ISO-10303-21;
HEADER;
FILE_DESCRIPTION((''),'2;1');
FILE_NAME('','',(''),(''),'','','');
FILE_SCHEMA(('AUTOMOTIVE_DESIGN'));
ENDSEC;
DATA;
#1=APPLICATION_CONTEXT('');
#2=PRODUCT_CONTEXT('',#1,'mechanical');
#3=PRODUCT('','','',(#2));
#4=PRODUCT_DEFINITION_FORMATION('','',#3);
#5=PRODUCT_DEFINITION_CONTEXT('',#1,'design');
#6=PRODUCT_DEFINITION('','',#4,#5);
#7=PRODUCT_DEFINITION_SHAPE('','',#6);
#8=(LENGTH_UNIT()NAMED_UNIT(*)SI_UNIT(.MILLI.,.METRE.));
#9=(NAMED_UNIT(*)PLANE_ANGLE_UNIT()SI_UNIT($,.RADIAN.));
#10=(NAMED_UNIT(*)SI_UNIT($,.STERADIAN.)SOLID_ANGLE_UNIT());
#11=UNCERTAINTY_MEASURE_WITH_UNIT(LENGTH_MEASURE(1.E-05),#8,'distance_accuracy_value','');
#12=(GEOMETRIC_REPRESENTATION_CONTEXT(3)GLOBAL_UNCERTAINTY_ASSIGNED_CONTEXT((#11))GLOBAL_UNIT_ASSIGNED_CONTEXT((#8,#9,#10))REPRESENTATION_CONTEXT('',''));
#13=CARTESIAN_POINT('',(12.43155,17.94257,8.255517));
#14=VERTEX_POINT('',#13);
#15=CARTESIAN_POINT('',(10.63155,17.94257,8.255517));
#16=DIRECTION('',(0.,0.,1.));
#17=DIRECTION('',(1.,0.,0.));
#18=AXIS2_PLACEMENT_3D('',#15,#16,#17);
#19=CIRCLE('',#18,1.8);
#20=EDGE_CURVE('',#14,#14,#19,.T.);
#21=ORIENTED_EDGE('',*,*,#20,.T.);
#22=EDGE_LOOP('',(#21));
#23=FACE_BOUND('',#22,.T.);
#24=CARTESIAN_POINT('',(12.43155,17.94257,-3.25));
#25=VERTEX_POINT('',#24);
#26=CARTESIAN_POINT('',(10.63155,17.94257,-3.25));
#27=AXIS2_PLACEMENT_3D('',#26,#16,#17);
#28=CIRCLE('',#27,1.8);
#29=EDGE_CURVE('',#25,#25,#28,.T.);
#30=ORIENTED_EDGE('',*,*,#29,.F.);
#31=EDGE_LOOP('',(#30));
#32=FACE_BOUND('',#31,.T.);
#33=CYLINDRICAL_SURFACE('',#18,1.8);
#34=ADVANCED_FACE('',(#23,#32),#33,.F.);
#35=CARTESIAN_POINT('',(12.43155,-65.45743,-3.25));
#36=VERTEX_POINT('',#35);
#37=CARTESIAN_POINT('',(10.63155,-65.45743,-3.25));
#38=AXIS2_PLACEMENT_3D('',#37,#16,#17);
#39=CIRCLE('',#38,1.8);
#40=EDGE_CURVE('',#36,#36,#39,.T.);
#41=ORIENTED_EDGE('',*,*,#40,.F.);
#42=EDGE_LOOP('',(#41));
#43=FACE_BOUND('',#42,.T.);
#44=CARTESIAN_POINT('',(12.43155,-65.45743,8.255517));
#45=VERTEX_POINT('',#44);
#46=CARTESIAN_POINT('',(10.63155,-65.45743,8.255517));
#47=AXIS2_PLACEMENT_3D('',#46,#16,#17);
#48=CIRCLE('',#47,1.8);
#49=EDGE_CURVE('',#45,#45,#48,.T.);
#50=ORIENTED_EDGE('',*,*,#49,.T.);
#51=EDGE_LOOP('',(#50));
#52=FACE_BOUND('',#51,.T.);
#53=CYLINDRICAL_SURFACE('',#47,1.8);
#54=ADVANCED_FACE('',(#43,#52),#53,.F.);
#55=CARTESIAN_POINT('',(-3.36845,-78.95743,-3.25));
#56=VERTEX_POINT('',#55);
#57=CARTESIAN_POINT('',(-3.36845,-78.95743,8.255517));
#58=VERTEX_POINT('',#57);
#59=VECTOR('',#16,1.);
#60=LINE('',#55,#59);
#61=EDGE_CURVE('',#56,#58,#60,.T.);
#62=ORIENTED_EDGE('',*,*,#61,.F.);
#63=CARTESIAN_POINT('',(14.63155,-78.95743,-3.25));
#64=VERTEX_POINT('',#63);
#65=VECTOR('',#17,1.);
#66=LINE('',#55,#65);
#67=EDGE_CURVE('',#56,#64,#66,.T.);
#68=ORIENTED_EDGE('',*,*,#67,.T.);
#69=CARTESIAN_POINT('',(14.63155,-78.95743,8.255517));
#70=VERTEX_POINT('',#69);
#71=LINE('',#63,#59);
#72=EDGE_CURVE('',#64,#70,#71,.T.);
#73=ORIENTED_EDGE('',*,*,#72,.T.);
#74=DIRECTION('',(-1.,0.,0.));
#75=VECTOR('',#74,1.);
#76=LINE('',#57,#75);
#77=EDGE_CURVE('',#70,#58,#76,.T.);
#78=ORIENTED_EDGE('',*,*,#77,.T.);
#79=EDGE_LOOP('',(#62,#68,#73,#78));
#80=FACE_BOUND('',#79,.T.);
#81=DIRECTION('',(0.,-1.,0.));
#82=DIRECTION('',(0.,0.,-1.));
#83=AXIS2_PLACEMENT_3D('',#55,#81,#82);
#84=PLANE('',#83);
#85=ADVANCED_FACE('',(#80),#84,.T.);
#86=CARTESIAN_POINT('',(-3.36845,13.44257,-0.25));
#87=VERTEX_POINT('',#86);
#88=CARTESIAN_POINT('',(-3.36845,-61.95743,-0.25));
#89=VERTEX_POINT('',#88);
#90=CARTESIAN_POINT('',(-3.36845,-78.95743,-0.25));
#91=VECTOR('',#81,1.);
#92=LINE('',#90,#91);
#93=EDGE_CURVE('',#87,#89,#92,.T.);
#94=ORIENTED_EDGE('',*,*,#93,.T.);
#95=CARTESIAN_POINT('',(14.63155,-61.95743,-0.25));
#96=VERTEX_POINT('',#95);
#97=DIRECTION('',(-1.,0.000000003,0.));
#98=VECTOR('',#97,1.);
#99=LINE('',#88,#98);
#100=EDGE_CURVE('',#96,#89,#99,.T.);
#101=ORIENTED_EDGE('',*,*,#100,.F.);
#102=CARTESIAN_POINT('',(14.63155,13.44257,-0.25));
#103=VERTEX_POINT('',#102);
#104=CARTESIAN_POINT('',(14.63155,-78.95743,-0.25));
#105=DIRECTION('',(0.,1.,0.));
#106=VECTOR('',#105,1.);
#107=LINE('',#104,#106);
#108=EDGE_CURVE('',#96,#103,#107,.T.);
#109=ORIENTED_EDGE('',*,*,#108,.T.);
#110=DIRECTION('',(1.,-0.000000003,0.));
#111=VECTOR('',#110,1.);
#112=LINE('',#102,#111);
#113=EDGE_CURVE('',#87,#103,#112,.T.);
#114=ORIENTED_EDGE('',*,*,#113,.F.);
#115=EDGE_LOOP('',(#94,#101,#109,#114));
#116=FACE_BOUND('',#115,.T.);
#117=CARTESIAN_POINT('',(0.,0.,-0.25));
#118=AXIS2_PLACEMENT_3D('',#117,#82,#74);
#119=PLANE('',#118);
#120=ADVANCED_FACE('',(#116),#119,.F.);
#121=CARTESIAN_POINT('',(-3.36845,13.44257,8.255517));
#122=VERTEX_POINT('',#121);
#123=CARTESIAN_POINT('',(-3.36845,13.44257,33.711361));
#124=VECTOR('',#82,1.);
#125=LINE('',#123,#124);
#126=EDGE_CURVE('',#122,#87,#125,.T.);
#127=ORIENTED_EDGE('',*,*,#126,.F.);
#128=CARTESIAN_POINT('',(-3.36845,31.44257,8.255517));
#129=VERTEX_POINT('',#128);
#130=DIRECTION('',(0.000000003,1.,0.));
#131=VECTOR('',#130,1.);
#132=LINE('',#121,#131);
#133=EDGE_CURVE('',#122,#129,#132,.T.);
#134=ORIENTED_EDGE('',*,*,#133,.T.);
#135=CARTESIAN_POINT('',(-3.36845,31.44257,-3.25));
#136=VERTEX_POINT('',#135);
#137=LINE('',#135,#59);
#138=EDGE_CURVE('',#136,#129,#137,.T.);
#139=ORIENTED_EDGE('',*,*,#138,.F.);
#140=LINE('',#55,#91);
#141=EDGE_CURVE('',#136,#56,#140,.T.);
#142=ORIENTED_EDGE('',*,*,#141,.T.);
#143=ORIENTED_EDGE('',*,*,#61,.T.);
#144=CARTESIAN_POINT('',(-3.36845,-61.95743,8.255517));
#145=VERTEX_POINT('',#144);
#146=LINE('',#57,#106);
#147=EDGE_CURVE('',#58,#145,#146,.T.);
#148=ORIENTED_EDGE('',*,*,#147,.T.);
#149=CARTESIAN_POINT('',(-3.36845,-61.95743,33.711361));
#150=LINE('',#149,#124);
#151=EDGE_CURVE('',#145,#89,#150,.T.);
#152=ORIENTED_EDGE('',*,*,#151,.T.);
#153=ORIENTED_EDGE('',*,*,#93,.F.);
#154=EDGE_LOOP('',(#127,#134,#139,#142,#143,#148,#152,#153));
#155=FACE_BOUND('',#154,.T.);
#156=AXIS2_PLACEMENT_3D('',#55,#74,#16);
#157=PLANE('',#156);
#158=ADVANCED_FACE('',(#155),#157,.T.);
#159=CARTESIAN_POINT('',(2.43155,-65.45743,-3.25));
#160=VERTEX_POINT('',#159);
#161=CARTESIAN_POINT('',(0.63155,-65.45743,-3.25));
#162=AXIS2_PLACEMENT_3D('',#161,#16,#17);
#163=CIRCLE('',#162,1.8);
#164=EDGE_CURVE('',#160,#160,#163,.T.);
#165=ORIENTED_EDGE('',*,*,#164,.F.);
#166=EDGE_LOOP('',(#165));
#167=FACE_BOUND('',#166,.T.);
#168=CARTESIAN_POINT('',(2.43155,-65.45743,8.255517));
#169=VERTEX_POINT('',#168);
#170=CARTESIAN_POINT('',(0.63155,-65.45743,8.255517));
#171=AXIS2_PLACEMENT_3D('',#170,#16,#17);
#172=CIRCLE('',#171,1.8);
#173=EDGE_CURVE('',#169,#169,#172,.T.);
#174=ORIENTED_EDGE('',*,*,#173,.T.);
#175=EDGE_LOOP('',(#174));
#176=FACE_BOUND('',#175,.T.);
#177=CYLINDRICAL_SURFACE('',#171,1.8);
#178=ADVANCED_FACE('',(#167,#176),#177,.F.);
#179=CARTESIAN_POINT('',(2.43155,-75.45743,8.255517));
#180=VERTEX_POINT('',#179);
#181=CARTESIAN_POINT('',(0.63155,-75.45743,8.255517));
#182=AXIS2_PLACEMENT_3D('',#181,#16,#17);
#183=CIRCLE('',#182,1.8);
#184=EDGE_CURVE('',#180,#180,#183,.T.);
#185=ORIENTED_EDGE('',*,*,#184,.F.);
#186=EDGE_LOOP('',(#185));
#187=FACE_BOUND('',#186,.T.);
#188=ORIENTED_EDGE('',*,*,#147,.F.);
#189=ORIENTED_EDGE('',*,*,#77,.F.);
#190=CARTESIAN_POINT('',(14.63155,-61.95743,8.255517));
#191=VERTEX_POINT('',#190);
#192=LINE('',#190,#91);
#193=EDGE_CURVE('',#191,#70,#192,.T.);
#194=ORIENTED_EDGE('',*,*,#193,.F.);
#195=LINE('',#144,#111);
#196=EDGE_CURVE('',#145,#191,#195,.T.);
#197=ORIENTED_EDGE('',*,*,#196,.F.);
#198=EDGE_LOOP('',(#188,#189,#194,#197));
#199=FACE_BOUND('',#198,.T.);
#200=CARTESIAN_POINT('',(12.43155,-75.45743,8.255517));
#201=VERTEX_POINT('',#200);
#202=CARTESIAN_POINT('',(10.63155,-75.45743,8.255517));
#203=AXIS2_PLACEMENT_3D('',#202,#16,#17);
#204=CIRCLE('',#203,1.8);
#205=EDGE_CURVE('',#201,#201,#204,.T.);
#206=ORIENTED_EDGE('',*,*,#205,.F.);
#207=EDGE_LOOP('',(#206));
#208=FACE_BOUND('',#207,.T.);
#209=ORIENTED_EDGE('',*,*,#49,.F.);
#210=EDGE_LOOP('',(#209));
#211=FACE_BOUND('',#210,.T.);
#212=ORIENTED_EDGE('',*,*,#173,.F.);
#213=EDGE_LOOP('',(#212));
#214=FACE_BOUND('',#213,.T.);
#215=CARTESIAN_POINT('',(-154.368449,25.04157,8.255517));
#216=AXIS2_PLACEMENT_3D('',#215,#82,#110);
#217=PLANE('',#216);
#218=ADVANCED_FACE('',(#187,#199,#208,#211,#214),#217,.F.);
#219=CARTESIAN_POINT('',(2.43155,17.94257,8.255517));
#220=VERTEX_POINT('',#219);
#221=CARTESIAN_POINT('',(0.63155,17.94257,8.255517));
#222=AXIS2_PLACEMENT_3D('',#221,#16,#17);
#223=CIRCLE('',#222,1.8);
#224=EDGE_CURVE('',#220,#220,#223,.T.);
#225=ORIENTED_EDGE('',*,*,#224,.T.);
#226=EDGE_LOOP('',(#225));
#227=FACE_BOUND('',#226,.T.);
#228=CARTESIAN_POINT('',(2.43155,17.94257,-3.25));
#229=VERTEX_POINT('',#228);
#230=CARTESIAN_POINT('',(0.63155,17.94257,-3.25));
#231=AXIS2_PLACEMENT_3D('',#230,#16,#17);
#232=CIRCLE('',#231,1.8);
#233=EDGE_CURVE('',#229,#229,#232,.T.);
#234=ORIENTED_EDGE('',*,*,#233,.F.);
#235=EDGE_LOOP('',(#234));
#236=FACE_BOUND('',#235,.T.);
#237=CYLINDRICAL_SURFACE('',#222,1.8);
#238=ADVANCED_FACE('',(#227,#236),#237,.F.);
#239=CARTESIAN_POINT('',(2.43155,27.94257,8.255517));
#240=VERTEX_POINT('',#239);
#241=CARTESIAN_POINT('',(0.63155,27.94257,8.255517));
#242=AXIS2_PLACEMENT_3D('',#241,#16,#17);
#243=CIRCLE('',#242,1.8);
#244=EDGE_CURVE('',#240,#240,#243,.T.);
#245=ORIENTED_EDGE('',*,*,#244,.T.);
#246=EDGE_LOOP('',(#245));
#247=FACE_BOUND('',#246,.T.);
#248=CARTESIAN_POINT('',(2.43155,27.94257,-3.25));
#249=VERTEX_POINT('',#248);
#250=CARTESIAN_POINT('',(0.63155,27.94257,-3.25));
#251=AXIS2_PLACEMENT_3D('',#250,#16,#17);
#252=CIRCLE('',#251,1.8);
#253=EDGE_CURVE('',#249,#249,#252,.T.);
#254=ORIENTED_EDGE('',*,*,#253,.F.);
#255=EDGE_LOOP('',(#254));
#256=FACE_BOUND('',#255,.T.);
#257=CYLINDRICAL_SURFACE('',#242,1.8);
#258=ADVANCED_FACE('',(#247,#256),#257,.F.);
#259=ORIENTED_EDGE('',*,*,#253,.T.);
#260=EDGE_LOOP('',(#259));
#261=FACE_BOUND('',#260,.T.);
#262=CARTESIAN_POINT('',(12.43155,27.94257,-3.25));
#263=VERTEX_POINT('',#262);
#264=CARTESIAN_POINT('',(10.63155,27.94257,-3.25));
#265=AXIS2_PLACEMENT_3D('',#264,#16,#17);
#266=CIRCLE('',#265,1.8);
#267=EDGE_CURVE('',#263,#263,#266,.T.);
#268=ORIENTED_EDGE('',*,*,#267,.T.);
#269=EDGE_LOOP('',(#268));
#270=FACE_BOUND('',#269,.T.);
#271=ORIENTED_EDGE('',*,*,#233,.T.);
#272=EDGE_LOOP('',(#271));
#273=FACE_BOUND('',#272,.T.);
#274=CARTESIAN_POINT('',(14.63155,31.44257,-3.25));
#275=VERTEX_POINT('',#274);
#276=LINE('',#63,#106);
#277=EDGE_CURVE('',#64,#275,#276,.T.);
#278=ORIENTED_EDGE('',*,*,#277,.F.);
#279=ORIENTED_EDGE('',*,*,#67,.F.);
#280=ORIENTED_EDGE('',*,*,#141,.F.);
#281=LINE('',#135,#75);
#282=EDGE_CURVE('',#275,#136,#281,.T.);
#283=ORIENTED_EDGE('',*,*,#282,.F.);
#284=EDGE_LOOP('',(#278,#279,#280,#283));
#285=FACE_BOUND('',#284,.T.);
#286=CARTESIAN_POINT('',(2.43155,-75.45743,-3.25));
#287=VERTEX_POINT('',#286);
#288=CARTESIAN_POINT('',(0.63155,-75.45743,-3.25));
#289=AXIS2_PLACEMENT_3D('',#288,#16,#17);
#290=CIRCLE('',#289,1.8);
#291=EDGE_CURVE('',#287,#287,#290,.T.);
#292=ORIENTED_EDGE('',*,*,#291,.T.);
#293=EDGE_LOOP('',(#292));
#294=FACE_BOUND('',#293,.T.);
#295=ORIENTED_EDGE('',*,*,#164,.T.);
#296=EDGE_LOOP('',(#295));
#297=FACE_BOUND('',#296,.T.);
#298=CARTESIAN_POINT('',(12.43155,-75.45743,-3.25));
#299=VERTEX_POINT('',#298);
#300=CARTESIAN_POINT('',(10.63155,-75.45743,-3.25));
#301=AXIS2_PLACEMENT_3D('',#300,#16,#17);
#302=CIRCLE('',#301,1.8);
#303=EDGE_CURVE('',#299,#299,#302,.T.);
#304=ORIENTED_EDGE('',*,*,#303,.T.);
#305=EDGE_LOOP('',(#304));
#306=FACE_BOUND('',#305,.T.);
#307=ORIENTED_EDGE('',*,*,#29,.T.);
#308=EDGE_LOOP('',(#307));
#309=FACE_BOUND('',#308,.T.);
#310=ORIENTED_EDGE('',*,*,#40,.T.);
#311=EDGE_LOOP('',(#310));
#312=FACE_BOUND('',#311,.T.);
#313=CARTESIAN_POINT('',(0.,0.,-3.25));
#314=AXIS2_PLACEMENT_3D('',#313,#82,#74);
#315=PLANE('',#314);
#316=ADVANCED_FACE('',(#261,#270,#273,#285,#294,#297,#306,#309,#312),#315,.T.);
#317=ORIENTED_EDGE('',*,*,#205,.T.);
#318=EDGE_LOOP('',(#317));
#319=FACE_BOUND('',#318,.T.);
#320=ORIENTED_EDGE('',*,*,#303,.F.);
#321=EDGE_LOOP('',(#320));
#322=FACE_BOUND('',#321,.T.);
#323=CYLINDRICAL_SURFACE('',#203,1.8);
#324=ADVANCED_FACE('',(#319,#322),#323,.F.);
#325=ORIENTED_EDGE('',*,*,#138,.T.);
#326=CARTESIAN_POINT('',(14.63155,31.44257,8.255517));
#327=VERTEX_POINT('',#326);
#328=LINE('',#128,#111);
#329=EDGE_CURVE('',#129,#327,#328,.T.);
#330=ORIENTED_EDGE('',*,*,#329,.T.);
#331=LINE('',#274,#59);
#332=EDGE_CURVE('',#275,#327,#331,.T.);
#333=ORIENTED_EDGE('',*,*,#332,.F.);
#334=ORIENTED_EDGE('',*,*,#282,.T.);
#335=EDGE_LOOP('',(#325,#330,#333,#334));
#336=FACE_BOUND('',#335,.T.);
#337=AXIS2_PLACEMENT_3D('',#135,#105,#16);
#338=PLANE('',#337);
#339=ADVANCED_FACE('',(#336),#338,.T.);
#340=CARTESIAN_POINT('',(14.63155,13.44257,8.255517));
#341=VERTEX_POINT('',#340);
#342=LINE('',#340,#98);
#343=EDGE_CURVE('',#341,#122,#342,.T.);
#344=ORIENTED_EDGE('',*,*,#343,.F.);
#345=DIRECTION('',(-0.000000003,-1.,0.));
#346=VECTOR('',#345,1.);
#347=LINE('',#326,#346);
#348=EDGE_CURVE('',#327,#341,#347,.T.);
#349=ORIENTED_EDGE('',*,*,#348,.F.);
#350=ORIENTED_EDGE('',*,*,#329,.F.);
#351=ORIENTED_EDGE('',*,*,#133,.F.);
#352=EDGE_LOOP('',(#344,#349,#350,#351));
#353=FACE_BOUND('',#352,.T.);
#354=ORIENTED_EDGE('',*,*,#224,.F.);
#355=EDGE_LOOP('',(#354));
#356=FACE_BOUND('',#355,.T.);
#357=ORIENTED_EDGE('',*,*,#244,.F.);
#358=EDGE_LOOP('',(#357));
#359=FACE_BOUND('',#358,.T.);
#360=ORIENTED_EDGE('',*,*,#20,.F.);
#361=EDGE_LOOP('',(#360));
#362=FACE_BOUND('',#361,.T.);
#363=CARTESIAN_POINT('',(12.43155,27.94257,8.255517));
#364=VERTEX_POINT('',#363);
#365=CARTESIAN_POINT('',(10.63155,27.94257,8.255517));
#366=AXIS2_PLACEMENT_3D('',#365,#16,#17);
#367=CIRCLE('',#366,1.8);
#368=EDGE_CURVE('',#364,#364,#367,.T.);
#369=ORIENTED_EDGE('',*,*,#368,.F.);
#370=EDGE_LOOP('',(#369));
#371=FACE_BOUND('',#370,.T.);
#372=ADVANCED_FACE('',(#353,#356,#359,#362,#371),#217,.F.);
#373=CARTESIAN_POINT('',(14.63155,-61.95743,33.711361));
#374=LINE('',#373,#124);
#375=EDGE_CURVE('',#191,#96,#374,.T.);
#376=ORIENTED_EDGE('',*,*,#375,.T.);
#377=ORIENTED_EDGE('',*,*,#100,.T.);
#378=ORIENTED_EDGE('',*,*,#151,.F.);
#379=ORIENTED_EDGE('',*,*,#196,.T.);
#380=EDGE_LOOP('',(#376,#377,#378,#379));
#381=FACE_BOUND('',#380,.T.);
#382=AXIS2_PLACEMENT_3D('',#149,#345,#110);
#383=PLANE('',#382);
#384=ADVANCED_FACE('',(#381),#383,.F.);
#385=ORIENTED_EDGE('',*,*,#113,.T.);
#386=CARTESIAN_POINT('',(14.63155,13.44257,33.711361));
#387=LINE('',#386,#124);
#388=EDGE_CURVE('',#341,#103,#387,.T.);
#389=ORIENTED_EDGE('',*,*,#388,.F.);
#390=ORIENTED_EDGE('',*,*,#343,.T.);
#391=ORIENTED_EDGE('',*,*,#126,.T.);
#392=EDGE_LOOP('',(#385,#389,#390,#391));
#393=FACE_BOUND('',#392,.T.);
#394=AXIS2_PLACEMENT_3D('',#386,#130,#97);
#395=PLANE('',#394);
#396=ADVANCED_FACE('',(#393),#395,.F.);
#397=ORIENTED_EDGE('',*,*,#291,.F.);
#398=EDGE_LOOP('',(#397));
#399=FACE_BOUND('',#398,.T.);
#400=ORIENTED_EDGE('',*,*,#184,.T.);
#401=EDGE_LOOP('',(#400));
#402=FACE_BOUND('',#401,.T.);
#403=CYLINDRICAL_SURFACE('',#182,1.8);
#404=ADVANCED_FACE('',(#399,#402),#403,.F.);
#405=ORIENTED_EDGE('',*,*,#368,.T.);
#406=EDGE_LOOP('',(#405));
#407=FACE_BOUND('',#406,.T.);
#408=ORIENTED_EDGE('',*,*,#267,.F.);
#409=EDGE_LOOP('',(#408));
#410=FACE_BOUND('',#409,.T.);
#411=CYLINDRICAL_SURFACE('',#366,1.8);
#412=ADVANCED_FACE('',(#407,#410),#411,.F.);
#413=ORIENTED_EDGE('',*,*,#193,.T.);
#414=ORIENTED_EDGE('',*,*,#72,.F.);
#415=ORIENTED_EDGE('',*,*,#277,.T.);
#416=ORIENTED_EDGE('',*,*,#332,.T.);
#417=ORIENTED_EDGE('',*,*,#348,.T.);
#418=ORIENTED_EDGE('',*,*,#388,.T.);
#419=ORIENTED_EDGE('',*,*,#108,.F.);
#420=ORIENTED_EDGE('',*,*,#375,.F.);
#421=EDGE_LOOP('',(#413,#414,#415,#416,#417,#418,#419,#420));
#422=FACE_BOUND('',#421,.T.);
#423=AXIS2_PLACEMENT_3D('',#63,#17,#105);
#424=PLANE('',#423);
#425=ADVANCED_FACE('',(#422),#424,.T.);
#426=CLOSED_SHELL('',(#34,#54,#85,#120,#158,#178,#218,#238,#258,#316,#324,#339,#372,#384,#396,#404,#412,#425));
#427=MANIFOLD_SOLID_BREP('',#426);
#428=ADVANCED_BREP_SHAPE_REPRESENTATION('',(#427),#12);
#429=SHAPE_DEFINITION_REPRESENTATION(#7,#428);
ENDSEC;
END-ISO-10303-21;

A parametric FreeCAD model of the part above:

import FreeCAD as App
import Part
import Sketcher

doc = App.newDocument("Part")
body = doc.addObject("PartDesign::Body", "Body")

# Sketch on XY plane
sketch1 = body.newObject("Sketcher::SketchObject", "Sketch")
sketch1.AttachmentSupport = (doc.getObject("XY_Plane"), [""])
sketch1.MapMode = "FlatFace"
sketch1.AttachmentOffset = App.Placement(App.Vector(0, 0, -0.25), App.Rotation())
sketch1.addGeometry([
    Part.LineSegment(App.Vector(-3.36845, 31.44257, 0), App.Vector(-3.36845, -78.95743, 0)),
    Part.LineSegment(App.Vector(-3.36845, -78.95743, 0), App.Vector(14.63155, -78.95743, 0)),
    Part.LineSegment(App.Vector(14.63155, -78.95743, 0), App.Vector(14.63155, 31.44257, 0)),
    Part.LineSegment(App.Vector(14.63155, 31.44257, 0), App.Vector(-3.36845, 31.44257, 0)),
], False)
sketch1.addConstraint([
    Sketcher.Constraint("Coincident", 0, 2, 1, 1),
    Sketcher.Constraint("Coincident", 1, 2, 2, 1),
    Sketcher.Constraint("Coincident", 2, 2, 3, 1),
    Sketcher.Constraint("Coincident", 3, 2, 0, 1),
    Sketcher.Constraint("Vertical", 0),
    Sketcher.Constraint("Horizontal", 1),
    Sketcher.Constraint("Vertical", 2),
    Sketcher.Constraint("Horizontal", 3),
    Sketcher.Constraint("DistanceX", 1, 1, 1, 2, 18.0),
    Sketcher.Constraint("DistanceY", 0, 2, 0, 1, 110.4),
    Sketcher.Constraint("DistanceX", 0, 2, -1, 1, 3.36845),
    Sketcher.Constraint("DistanceY", 0, 2, -1, 1, 78.95743),
])
pad1 = body.newObject("PartDesign::Pad", "Pad")
pad1.Profile = sketch1
pad1.Length = 3
pad1.Reversed = True

# Sketch on XY plane
sketch2 = body.newObject("Sketcher::SketchObject", "Sketch001")
sketch2.AttachmentSupport = (doc.getObject("XY_Plane"), [""])
sketch2.MapMode = "FlatFace"
sketch2.AttachmentOffset = App.Placement(App.Vector(0, 0, -0.25), App.Rotation())
sketch2.addGeometry([
    Part.LineSegment(App.Vector(14.63155, 31.44257, 0), App.Vector(-3.36845, 31.44257, 0)),  # 0
    Part.LineSegment(App.Vector(-3.36845, 31.44257, 0), App.Vector(-3.36845, 13.44257, 0)),  # 1
    Part.LineSegment(App.Vector(-3.36845, 13.44257, 0), App.Vector(14.63155, 13.44257, 0)),  # 2
    Part.LineSegment(App.Vector(14.63155, 13.44257, 0), App.Vector(14.63155, 31.44257, 0)),  # 3
    Part.LineSegment(App.Vector(14.63155, -61.95743, 0), App.Vector(-3.36845, -61.95743, 0)),  # 4
    Part.LineSegment(App.Vector(-3.36845, -61.95743, 0), App.Vector(-3.36845, -78.95743, 0)),  # 5
    Part.LineSegment(App.Vector(-3.36845, -78.95743, 0), App.Vector(14.63155, -78.95743, 0)),  # 6
    Part.LineSegment(App.Vector(14.63155, -78.95743, 0), App.Vector(14.63155, -61.95743, 0)),  # 7
], False)
sketch2.addConstraint([
    Sketcher.Constraint("Coincident", 0, 2, 1, 1),
    Sketcher.Constraint("Coincident", 1, 2, 2, 1),
    Sketcher.Constraint("Coincident", 2, 2, 3, 1),
    Sketcher.Constraint("Coincident", 3, 2, 0, 1),
    Sketcher.Constraint("Coincident", 4, 2, 5, 1),
    Sketcher.Constraint("Coincident", 5, 2, 6, 1),
    Sketcher.Constraint("Coincident", 6, 2, 7, 1),
    Sketcher.Constraint("Coincident", 7, 2, 4, 1),
    Sketcher.Constraint("Horizontal", 0),
    Sketcher.Constraint("Vertical", 1),
    Sketcher.Constraint("Horizontal", 2),
    Sketcher.Constraint("Vertical", 3),
    Sketcher.Constraint("Horizontal", 4),
    Sketcher.Constraint("Vertical", 5),
    Sketcher.Constraint("Horizontal", 6),
    Sketcher.Constraint("Vertical", 7),
    Sketcher.Constraint("Vertical", 1, 2, 4, 2),
    Sketcher.Constraint("Vertical", 3, 2, 6, 2),
    Sketcher.Constraint("Equal", 6, 1),
    Sketcher.Constraint("DistanceX", 0, 2, 0, 1, 18.0),
    Sketcher.Constraint("DistanceY", 5, 2, 5, 1, 17.0),
    Sketcher.Constraint("DistanceY", 4, 2, 1, 2, 75.4),
    Sketcher.Constraint("DistanceX", 0, 2, -1, 1, 3.36845),
    Sketcher.Constraint("DistanceY", -1, 1, 0, 2, 31.44257),
])
pad2 = body.newObject("PartDesign::Pad", "Pad001")
pad2.Profile = sketch2
pad2.Length = 8.505517

# Sketch on XY plane
sketch3 = body.newObject("Sketcher::SketchObject", "Sketch002")
sketch3.AttachmentSupport = (doc.getObject("XY_Plane"), [""])
sketch3.MapMode = "FlatFace"
sketch3.AttachmentOffset = App.Placement(App.Vector(0, 0, 8.255517), App.Rotation())
sketch3.addGeometry([
    Part.Circle(App.Vector(0.63155, -65.45743, 0), App.Vector(0, 0, 1), 1.8),  # 0
    Part.Circle(App.Vector(0.63155, -75.45743, 0), App.Vector(0, 0, 1), 1.8),  # 1
    Part.Circle(App.Vector(10.63155, -75.45743, 0), App.Vector(0, 0, 1), 1.8),  # 2
    Part.Circle(App.Vector(10.63155, -65.45743, 0), App.Vector(0, 0, 1), 1.8),  # 3
    Part.Circle(App.Vector(0.63155, 17.94257, 0), App.Vector(0, 0, 1), 1.8),  # 4
    Part.Circle(App.Vector(10.63155, 17.94257, 0), App.Vector(0, 0, 1), 1.8),  # 5
    Part.Circle(App.Vector(10.63155, 27.94257, 0), App.Vector(0, 0, 1), 1.8),  # 6
    Part.Circle(App.Vector(0.63155, 27.94257, 0), App.Vector(0, 0, 1), 1.8),  # 7
], False)
sketch3.addConstraint([
    Sketcher.Constraint("Equal", 0, 1),
    Sketcher.Constraint("Equal", 1, 2),
    Sketcher.Constraint("Equal", 2, 3),
    Sketcher.Constraint("Equal", 3, 4),
    Sketcher.Constraint("Equal", 4, 5),
    Sketcher.Constraint("Equal", 5, 6),
    Sketcher.Constraint("Equal", 6, 7),
    Sketcher.Constraint("Horizontal", 1, 3, 2, 3),
    Sketcher.Constraint("Horizontal", 0, 3, 3, 3),
    Sketcher.Constraint("Horizontal", 4, 3, 5, 3),
    Sketcher.Constraint("Horizontal", 6, 3, 7, 3),
    Sketcher.Constraint("Vertical", 0, 3, 1, 3),
    Sketcher.Constraint("Vertical", 2, 3, 3, 3),
    Sketcher.Constraint("Vertical", 1, 3, 4, 3),
    Sketcher.Constraint("Vertical", 3, 3, 5, 3),
    Sketcher.Constraint("Vertical", 5, 3, 6, 3),
    Sketcher.Constraint("Vertical", 4, 3, 7, 3),
    Sketcher.Constraint("Diameter", 0, 3.6),
    Sketcher.Constraint("DistanceY", 1, 3, 0, 3, 10.0),
    Sketcher.Constraint("DistanceX", 1, 3, 2, 3, 10.0),
    Sketcher.Constraint("DistanceY", 5, 3, 6, 3, 10.0),
    Sketcher.Constraint("DistanceY", 0, 3, 4, 3, 83.4),
    Sketcher.Constraint("DistanceX", -1, 1, 0, 3, 0.63155),
    Sketcher.Constraint("DistanceY", 0, 3, -1, 1, 65.45743),
])
doc.recompute()
hole = body.newObject("PartDesign::Hole", "Hole")
hole.Profile = sketch3
hole.ThreadType = "None"
hole.Diameter = 3.6
hole.DepthType = "ThroughAll"

doc.recompute()
